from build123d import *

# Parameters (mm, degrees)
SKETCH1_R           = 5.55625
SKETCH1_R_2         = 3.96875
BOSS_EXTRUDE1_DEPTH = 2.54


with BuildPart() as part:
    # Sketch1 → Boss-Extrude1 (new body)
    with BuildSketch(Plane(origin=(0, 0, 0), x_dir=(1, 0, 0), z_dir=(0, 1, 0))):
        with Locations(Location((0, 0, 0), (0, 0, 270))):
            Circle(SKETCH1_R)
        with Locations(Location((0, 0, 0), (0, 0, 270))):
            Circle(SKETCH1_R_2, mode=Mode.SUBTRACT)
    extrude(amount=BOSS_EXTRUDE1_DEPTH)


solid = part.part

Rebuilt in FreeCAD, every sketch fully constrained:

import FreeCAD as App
import Part
import Sketcher

V = App.Vector
Q = App.Units.Quantity

doc = App.newDocument("Part")
body = doc.addObject("PartDesign::Body", "Body")

# Sketch on XZ plane
sketch1 = body.newObject("Sketcher::SketchObject", "Sketch")
sketch1.AttachmentSupport = (doc.getObject("XZ_Plane"), [""])
sketch1.MapMode = "FlatFace"
sketch1.addGeometry(Part.Circle(V(0, 0, 0), V(0, 0, 1), 5.6), False)
sketch1.addGeometry(Part.Circle(V(0, 0, 0), V(0, 0, 1), 4), False)
sketch1.addConstraint(Sketcher.Constraint("Coincident", 0, 3, -1, 1))
sketch1.addConstraint(Sketcher.Constraint("Coincident", 1, 3, -1, 1))
sketch1.addConstraint(Sketcher.Constraint("Diameter", 0, Q("0.4375 in")))
sketch1.addConstraint(Sketcher.Constraint("Diameter", 1, Q("0.3125 in")))
pad1 = body.newObject("PartDesign::Pad", "Pad")
pad1.Profile = sketch1
pad1.Length = Q("0.1 in")
pad1.Reversed = True

doc.recompute()
